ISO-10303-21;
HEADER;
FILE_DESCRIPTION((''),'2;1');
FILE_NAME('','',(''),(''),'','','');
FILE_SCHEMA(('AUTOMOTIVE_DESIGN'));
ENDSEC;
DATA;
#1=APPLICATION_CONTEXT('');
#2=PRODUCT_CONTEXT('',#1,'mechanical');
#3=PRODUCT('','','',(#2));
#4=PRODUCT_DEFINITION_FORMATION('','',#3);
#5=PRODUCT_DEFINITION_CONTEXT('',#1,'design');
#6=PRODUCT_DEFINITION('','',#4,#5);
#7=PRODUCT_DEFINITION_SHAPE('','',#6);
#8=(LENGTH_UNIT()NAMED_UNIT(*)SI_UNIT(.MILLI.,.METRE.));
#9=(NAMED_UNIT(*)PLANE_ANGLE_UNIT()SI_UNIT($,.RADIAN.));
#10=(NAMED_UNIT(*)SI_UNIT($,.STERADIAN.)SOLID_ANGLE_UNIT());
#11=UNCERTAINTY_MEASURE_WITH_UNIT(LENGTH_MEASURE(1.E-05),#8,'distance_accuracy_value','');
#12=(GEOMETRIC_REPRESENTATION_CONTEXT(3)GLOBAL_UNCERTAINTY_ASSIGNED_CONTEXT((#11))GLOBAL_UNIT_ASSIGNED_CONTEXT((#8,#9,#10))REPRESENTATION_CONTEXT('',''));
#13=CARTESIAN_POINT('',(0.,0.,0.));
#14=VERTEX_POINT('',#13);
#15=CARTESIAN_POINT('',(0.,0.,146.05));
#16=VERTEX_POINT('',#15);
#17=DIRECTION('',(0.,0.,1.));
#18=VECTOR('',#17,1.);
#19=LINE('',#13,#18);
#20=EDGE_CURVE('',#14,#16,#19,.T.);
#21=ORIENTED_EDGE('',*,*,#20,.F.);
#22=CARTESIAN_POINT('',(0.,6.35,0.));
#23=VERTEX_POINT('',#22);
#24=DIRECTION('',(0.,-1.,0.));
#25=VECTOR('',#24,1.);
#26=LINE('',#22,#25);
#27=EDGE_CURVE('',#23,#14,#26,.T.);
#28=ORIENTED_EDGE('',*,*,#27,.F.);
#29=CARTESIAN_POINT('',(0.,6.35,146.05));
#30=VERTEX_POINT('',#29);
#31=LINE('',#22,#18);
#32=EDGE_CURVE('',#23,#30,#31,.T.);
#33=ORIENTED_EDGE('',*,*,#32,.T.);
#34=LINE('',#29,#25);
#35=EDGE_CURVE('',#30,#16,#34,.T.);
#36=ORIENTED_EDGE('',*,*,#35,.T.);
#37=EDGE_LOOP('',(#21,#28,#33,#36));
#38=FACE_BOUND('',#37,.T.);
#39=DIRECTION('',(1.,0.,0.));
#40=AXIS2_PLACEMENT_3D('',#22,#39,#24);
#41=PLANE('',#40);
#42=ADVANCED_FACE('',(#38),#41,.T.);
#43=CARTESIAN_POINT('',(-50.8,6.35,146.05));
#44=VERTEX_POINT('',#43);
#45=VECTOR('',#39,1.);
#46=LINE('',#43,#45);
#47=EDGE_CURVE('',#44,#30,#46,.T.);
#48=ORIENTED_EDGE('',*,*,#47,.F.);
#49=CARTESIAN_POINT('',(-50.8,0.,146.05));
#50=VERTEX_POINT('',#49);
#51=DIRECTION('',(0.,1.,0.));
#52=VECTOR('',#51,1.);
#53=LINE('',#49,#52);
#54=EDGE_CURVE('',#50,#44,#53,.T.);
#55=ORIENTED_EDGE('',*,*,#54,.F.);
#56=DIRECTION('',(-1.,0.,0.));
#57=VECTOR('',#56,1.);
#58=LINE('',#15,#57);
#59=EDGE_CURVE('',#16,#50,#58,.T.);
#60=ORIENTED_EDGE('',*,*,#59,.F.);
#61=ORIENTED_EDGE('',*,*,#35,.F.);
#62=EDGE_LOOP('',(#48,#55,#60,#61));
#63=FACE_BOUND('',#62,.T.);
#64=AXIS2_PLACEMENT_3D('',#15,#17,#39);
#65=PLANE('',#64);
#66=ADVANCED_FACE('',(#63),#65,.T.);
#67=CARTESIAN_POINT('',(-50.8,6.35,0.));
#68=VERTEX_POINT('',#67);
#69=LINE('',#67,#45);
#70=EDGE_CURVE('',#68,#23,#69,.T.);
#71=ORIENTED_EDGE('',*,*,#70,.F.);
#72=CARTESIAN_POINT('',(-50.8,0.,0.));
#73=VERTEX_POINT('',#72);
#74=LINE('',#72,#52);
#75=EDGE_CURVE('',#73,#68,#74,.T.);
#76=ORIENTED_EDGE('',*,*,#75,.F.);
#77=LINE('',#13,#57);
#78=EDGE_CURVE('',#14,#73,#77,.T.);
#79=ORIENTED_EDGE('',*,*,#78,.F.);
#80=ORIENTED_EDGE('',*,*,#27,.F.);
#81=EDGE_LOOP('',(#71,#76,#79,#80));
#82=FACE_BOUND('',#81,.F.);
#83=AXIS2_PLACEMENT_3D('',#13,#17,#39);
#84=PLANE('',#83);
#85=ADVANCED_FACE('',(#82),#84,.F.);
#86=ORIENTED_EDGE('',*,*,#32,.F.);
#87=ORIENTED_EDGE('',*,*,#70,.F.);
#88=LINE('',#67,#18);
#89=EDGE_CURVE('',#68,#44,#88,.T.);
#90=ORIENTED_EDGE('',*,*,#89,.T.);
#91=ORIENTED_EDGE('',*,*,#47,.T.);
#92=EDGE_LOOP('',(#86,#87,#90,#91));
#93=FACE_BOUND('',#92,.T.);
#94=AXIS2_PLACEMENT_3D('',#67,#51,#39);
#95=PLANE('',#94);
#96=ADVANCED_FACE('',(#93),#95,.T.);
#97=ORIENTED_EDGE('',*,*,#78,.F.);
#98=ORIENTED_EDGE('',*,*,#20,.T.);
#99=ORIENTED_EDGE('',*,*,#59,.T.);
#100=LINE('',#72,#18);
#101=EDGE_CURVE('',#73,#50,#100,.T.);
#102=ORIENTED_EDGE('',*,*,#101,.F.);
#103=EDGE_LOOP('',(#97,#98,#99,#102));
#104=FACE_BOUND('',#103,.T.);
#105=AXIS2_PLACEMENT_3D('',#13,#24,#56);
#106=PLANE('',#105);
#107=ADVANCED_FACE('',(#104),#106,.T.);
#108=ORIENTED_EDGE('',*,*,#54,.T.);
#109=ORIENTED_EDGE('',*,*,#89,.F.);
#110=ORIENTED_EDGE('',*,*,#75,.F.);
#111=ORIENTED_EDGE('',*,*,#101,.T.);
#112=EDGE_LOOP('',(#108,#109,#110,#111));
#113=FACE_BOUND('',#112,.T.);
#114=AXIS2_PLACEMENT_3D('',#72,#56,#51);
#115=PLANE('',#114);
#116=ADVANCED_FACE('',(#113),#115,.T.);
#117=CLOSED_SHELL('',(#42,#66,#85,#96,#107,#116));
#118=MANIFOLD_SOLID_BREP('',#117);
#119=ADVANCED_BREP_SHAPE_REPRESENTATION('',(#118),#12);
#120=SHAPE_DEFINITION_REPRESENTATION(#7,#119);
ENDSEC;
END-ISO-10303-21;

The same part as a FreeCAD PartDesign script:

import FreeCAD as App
import Part
import Sketcher

V = App.Vector
Q = App.Units.Quantity


def add_polygon(sketch, points):
    """Adds a closed chain of lines whose ends are joined by coincident constraints."""
    first, n = sketch.GeometryCount, len(points)
    for a, b in zip(points, points[1:] + points[:1]):
        sketch.addGeometry(Part.LineSegment(App.Vector(*a, 0), App.Vector(*b, 0)), False)
    for i in range(n):
        sketch.addConstraint(Sketcher.Constraint("Coincident", first + i, 2, first + (i + 1) % n, 1))

doc = App.newDocument("Part")
params = doc.addObject("Spreadsheet::Sheet", "Params")
for row, (alias, value) in enumerate([
    ("sketch1_width", "2 in"),
    ("sketch1_height", "0.25 in"),
    ("pad1_length", "5.75 in"),
], start=1):
    params.set(f"A{row}", alias)
    params.set(f"B{row}", "=" + value)
    params.setAlias(f"B{row}", alias)

body = doc.addObject("PartDesign::Body", "Body")

# Sketch on XY plane
sketch1 = doc.addObject("Sketcher::SketchObject", "Sketch")
body.addObject(sketch1)
sketch1.AttachmentSupport = (doc.XY_Plane, [""])
sketch1.MapMode = "FlatFace"
add_polygon(sketch1, [(-51, 0), (0, 0), (0, 6), (-51, 6)])  # lines 0-3
sketch1.addConstraint([
    Sketcher.Constraint("Horizontal", 0),
    Sketcher.Constraint("Vertical", 1),
    Sketcher.Constraint("Horizontal", 2),
    Sketcher.Constraint("Vertical", 3),
    Sketcher.Constraint("Coincident", 0, 2, -1, 1),
    Sketcher.Constraint("DistanceX", 0, 1, 0, 2, Q("2 in")),
    Sketcher.Constraint("DistanceY", 1, 1, 1, 2, Q("0.25 in")),
])
sketch1.setExpression("Constraints[9]", "Params.sketch1_width")
sketch1.setExpression("Constraints[10]", "Params.sketch1_height")
pad1 = doc.addObject("PartDesign::Pad", "Pad")
body.addObject(pad1)
pad1.Profile = sketch1
pad1.setExpression("Length", "Params.pad1_length")

doc.recompute()
